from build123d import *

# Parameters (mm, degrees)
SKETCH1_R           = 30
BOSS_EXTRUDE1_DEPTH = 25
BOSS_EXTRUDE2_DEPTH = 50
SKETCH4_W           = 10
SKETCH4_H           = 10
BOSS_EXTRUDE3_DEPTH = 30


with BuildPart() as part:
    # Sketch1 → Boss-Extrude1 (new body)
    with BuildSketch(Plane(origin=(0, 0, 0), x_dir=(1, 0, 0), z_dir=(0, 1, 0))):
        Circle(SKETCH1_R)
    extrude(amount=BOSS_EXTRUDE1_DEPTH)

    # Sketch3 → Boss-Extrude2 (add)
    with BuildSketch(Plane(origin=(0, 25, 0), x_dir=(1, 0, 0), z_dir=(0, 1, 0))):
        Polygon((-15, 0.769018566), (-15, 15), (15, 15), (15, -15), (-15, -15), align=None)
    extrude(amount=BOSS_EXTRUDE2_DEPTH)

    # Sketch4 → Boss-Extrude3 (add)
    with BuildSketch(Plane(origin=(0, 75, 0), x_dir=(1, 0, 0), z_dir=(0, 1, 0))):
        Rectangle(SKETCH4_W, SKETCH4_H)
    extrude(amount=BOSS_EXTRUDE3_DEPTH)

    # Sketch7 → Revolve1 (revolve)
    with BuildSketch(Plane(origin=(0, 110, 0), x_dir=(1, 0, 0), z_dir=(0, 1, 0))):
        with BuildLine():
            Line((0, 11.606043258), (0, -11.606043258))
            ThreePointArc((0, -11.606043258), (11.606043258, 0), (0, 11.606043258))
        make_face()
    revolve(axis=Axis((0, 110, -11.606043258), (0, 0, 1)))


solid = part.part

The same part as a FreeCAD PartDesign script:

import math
import FreeCAD as App
import Part
import Sketcher


def add_polygon(sketch, points):
    """Adds a closed chain of lines whose ends are joined by coincident constraints."""
    first, n = sketch.GeometryCount, len(points)
    for a, b in zip(points, points[1:] + points[:1]):
        sketch.addGeometry(Part.LineSegment(App.Vector(*a, 0), App.Vector(*b, 0)), False)
    for i in range(n):
        sketch.addConstraint(Sketcher.Constraint("Coincident", first + i, 2, first + (i + 1) % n, 1))

doc = App.newDocument("Part")
body = doc.addObject("PartDesign::Body", "Body")

sketch1 = body.newObject("Sketcher::SketchObject", "Sketch")
sketch1.AttachmentSupport = (doc.getObject("XZ_Plane"), [""])
sketch1.MapMode = "FlatFace"
sketch1.addGeometry(Part.Circle(App.Vector(0, 0, 0), App.Vector(0, 0, 1), 30), False)
sketch1.addConstraint(Sketcher.Constraint("Coincident", 0, 3, -1, 1))
sketch1.addConstraint(Sketcher.Constraint("Diameter", 0, 60.0))
pad1 = body.newObject("PartDesign::Pad", "Pad")
pad1.Profile = sketch1
pad1.Length = 25
pad1.Reversed = True

sketch2 = body.newObject("Sketcher::SketchObject", "Sketch001")
sketch2.AttachmentSupport = (doc.getObject("XZ_Plane"), [""])
sketch2.MapMode = "FlatFace"
sketch2.AttachmentOffset = App.Placement(App.Vector(0, 0, -25), App.Rotation())
add_polygon(sketch2, [(-15, -15), (-15, 15), (15, 15), (15, -15)])
sketch2.addConstraint(Sketcher.Constraint("Vertical", 0))
sketch2.addConstraint(Sketcher.Constraint("Horizontal", 1))
sketch2.addConstraint(Sketcher.Constraint("Vertical", 2))
sketch2.addConstraint(Sketcher.Constraint("Horizontal", 3))
sketch2.addConstraint(Sketcher.Constraint("Symmetric", 0, 2, 2, 2, -1, 1))
sketch2.addConstraint(Sketcher.Constraint("Equal", 3, 0))
sketch2.addConstraint(Sketcher.Constraint("DistanceX", 1, 1, 1, 2, 30.0))
pad2 = body.newObject("PartDesign::Pad", "Pad001")
pad2.Profile = sketch2
pad2.Length = 50
pad2.Reversed = True

sketch3 = body.newObject("Sketcher::SketchObject", "Sketch002")
sketch3.AttachmentSupport = (doc.getObject("XZ_Plane"), [""])
sketch3.MapMode = "FlatFace"
sketch3.AttachmentOffset = App.Placement(App.Vector(0, 0, -75), App.Rotation())
add_polygon(sketch3, [(-5, -5), (-5, 5), (5, 5), (5, -5)])
sketch3.addConstraint(Sketcher.Constraint("Vertical", 0))
sketch3.addConstraint(Sketcher.Constraint("Horizontal", 1))
sketch3.addConstraint(Sketcher.Constraint("Vertical", 2))
sketch3.addConstraint(Sketcher.Constraint("Horizontal", 3))
sketch3.addConstraint(Sketcher.Constraint("Symmetric", 0, 2, 2, 2, -1, 1))
sketch3.addConstraint(Sketcher.Constraint("Equal", 3, 0))
sketch3.addConstraint(Sketcher.Constraint("DistanceX", 1, 1, 1, 2, 10.0))
pad3 = body.newObject("PartDesign::Pad", "Pad002")
pad3.Profile = sketch3
pad3.Length = 30
pad3.Reversed = True

sketch4 = body.newObject("Sketcher::SketchObject", "Sketch003")
sketch4.AttachmentSupport = (doc.getObject("XZ_Plane"), [""])
sketch4.MapMode = "FlatFace"
sketch4.AttachmentOffset = App.Placement(App.Vector(0, 0, -110), App.Rotation())
sketch4.addGeometry(Part.LineSegment(App.Vector(0, -12, 0), App.Vector(0, 12, 0)), False)
sketch4.addGeometry(Part.ArcOfCircle(Part.Circle(App.Vector(0, 0, 0), App.Vector(0, 0, 1), 12), math.radians(-90), math.radians(90)), False)
sketch4.addConstraint(Sketcher.Constraint("Coincident", 0, 1, 1, 1))
sketch4.addConstraint(Sketcher.Constraint("Coincident", 1, 2, 0, 2))
sketch4.addConstraint(Sketcher.Constraint("Vertical", 0))
sketch4.addConstraint(Sketcher.Constraint("Coincident", 1, 3, -1, 1))
sketch4.addConstraint(Sketcher.Constraint("PointOnObject", 0, 1, -2))
sketch4.addConstraint(Sketcher.Constraint("Radius", 1, 11.606043))
revolution = body.newObject("PartDesign::Revolution", "Revolution")
revolution.Profile = sketch4
revolution.ReferenceAxis = (sketch4, ["V_Axis"])
revolution.Angle = 360

doc.recompute()
